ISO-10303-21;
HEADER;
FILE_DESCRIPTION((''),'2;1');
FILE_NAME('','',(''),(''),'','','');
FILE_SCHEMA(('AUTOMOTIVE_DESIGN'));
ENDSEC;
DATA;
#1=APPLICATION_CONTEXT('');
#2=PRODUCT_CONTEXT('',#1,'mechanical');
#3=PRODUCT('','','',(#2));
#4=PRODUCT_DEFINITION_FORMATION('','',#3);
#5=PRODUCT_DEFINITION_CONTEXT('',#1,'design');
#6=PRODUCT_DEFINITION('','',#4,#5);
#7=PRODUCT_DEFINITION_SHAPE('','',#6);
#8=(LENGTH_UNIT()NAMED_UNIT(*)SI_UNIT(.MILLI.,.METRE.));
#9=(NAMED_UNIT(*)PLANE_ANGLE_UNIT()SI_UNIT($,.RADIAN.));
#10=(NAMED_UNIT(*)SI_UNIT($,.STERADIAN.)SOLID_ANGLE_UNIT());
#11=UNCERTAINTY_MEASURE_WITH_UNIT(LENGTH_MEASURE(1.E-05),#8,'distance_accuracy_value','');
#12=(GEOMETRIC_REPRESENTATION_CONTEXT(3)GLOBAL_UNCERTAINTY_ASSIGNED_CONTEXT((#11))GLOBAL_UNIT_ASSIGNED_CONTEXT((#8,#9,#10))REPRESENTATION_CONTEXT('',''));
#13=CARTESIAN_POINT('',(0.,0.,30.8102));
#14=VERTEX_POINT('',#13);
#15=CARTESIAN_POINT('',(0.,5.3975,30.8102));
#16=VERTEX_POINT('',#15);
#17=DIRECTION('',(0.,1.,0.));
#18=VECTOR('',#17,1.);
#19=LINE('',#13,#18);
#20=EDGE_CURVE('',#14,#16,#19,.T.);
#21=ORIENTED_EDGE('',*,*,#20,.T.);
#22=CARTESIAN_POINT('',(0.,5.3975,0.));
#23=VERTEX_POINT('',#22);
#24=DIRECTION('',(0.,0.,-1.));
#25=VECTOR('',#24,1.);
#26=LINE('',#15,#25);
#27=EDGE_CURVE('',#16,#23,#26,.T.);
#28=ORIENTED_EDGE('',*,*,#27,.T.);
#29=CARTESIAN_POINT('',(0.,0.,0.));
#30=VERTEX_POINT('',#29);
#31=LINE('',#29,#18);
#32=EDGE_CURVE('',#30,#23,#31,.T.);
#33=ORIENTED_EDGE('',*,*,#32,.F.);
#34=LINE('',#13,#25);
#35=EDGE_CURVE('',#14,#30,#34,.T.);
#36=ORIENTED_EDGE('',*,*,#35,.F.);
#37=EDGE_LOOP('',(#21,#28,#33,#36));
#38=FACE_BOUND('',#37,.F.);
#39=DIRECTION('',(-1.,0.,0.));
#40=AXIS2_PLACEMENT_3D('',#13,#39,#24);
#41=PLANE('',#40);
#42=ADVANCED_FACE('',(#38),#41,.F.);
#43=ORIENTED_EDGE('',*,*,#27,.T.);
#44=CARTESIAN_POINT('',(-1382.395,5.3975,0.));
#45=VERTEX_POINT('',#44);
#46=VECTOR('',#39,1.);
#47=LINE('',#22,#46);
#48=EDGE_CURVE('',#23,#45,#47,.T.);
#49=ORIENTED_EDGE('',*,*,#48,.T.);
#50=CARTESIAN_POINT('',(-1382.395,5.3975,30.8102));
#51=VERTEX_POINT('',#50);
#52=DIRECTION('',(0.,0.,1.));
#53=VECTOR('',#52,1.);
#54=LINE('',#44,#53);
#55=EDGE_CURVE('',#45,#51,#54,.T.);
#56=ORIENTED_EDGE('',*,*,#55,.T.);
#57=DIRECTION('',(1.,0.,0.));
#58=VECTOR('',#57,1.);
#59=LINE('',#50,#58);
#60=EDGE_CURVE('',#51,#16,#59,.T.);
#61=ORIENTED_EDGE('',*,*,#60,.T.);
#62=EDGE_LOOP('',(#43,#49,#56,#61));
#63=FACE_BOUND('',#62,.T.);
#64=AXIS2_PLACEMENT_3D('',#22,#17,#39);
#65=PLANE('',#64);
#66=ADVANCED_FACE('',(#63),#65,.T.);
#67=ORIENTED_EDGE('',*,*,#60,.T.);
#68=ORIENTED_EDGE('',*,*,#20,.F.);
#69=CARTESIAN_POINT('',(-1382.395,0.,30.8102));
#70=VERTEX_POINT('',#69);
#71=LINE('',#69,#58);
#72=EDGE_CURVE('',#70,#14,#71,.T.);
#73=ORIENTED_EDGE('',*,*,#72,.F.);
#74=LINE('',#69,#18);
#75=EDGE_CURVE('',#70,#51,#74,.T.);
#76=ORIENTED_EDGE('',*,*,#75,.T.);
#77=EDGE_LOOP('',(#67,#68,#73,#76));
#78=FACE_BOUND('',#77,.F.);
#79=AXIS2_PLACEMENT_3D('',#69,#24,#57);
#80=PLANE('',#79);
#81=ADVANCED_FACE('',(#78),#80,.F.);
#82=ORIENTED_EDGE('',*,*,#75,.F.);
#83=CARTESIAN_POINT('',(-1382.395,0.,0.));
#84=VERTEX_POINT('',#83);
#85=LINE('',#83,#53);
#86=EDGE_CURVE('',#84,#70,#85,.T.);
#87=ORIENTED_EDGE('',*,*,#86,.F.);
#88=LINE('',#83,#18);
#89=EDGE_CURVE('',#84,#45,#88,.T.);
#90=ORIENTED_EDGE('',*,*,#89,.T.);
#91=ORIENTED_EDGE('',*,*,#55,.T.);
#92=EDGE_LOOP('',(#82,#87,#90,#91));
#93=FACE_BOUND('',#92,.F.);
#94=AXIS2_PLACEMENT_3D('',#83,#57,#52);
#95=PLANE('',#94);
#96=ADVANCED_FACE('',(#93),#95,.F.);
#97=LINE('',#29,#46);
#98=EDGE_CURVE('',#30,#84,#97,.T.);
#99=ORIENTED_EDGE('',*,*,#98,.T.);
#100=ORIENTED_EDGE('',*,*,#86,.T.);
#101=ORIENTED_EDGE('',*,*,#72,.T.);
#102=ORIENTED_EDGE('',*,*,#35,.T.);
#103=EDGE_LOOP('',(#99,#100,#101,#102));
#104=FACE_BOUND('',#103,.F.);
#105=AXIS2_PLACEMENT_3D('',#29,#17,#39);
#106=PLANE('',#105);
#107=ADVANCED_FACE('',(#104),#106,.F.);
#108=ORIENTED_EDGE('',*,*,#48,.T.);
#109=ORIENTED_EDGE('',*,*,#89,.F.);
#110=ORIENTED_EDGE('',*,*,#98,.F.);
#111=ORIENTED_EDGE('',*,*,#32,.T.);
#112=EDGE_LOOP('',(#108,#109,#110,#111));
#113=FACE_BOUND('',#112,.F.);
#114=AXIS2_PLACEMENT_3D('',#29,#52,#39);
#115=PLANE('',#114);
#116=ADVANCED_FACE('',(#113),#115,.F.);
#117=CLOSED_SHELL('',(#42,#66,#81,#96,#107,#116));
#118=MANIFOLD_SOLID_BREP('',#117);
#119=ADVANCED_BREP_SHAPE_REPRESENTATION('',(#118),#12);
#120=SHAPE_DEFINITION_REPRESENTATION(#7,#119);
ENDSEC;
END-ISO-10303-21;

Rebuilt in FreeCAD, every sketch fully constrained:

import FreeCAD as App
import Part
import Sketcher
from FreeCAD import Vector
Q = App.Units.Quantity


def add_polygon(sketch, points):
    """Adds a closed chain of lines whose ends are joined by coincident constraints."""
    first, n = sketch.GeometryCount, len(points)
    for a, b in zip(points, points[1:] + points[:1]):
        sketch.addGeometry(Part.LineSegment(App.Vector(*a, 0), App.Vector(*b, 0)), False)
    for i in range(n):
        sketch.addConstraint(Sketcher.Constraint("Coincident", first + i, 2, first + (i + 1) % n, 1))

doc = App.newDocument("Part")
body = doc.addObject("PartDesign::Body", "Body")

sketch1 = body.newObject("Sketcher::SketchObject", "Sketch")
sketch1.AttachmentSupport = (doc.getObject("XZ_Plane"), [""])
sketch1.MapMode = "FlatFace"
add_polygon(sketch1, [(0, 31), (0, 0), (-1382, 0), (-1382, 31)])
sketch1.addConstraint([
    Sketcher.Constraint("Vertical", 0),
    Sketcher.Constraint("Horizontal", 1),
    Sketcher.Constraint("Vertical", 2),
    Sketcher.Constraint("Horizontal", 3),
    Sketcher.Constraint("Coincident", 0, 2, -1, 1),
    Sketcher.Constraint("DistanceX", 1, 2, 1, 1, Q("54.425 in")),
    Sketcher.Constraint("DistanceY", 0, 2, 0, 1, Q("1.213 in")),
])
pad1 = body.newObject("PartDesign::Pad", "Pad")
pad1.Profile = sketch1
pad1.Length = Q("0.2125 in")
pad1.Reversed = True

doc.recompute()
